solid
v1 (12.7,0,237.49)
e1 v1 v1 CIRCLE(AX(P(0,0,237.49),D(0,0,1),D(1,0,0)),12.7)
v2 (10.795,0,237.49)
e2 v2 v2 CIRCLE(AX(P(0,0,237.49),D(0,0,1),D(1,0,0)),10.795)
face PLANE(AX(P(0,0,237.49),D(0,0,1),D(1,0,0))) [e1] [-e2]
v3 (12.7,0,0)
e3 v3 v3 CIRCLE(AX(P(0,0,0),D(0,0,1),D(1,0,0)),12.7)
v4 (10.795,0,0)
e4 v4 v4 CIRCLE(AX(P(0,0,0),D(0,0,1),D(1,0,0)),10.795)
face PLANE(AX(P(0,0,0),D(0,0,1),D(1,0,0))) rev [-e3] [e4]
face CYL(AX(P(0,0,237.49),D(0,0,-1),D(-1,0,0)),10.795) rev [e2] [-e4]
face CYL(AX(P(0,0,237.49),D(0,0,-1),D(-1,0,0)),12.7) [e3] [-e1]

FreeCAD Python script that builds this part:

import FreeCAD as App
import Part
import Sketcher
Q = App.Units.Quantity

doc = App.newDocument("Part")
body = doc.addObject("PartDesign::Body", "Body")

# Sketch on XY plane
sketch1 = body.newObject("Sketcher::SketchObject", "Sketch")
sketch1.AttachmentSupport = (doc.getObject("XY_Plane"), [""])
sketch1.MapMode = "FlatFace"
sketch1.addGeometry([
    Part.Circle(App.Vector(0, 0, 0), App.Vector(0, 0, 1), 13),
    Part.Circle(App.Vector(0, 0, 0), App.Vector(0, 0, 1), 11),
], False)
sketch1.addConstraint([
    Sketcher.Constraint("Coincident", 0, 3, -1, 1),
    Sketcher.Constraint("Coincident", 1, 3, -1, 1),
    Sketcher.Constraint("Diameter", 0, Q("1 in")),
    Sketcher.Constraint("Diameter", 1, Q("0.85 in")),
])
pad1 = body.newObject("PartDesign::Pad", "Pad")
pad1.Profile = sketch1
pad1.Length = Q("9.35 in")

doc.recompute()
